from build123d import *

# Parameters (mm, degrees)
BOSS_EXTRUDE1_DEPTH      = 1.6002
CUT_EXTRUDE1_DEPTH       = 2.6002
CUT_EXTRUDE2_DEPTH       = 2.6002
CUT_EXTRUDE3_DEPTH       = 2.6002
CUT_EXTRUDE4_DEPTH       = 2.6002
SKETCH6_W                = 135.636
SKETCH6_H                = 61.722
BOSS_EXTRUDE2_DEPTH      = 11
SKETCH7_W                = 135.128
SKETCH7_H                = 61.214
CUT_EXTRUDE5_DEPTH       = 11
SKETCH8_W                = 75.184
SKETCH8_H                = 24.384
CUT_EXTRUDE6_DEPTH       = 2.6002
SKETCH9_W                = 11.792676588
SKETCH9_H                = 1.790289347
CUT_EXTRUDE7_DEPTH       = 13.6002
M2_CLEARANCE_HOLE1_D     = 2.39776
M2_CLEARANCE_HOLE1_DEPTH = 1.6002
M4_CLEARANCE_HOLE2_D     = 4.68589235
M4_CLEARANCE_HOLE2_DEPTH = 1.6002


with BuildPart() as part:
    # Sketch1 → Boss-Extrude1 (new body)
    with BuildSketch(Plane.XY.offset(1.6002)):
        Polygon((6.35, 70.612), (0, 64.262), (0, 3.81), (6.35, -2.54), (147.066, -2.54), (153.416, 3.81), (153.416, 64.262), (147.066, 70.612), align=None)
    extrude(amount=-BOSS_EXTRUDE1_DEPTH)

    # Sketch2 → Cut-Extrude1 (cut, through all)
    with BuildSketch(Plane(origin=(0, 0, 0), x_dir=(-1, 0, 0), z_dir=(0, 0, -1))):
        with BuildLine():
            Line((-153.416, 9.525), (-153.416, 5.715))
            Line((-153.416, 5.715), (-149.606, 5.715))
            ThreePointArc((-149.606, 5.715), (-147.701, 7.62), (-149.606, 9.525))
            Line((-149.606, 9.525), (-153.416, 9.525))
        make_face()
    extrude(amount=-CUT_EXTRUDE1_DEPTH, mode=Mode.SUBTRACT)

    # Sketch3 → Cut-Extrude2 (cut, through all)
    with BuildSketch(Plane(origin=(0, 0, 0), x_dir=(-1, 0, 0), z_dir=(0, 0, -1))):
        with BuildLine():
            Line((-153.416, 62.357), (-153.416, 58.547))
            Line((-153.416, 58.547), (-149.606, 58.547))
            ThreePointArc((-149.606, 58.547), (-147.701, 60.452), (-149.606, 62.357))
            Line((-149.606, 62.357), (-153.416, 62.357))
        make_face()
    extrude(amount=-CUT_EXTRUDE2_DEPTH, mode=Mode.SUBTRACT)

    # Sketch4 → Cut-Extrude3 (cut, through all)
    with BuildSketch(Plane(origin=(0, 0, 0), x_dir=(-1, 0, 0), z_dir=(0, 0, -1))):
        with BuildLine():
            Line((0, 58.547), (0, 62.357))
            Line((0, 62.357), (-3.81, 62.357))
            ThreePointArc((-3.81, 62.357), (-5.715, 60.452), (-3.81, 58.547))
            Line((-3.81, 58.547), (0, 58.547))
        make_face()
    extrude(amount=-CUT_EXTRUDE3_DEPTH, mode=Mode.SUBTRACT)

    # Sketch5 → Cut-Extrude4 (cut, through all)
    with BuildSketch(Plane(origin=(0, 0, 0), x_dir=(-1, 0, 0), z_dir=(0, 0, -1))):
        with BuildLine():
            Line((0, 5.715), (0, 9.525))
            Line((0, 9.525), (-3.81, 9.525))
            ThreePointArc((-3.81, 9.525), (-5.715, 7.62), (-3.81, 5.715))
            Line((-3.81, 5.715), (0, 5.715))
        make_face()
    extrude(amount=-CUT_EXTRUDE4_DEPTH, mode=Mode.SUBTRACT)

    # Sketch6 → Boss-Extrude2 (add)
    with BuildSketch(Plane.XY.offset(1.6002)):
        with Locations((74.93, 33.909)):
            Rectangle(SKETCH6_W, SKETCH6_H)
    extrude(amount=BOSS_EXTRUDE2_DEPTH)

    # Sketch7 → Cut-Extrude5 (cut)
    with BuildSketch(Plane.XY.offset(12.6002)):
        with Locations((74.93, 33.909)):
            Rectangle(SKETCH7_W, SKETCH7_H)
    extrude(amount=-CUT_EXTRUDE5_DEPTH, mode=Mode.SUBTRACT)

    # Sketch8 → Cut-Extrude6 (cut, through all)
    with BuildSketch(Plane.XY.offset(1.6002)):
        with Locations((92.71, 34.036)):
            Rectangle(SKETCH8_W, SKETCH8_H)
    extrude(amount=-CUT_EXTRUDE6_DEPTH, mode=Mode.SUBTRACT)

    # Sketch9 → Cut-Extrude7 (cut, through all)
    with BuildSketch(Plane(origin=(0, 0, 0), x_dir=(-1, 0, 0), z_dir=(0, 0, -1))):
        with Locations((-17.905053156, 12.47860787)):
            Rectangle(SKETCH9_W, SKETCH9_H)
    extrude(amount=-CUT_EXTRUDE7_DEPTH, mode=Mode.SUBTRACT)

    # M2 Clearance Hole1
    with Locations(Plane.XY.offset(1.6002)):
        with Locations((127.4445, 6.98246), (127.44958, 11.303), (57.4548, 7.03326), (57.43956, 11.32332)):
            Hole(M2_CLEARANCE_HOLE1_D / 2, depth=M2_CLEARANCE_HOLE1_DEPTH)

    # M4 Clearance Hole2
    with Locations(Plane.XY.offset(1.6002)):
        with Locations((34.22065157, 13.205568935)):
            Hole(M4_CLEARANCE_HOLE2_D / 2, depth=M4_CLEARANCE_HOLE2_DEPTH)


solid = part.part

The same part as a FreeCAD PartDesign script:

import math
import FreeCAD as App
import Part
import Sketcher
from FreeCAD import Vector
Q = App.Units.Quantity

doc = App.newDocument("Part")
params = doc.addObject("Spreadsheet::Sheet", "Params")
for row, (alias, value) in enumerate([
    ("sketch1_width", "5.54 in"),
    ("sketch1_height", "2.38 in"),
    ("pad1_length", "0.063 in"),
    ("sketch2_radius", "0.075 in"),
    ("sketch3_radius", "0.075 in"),
    ("sketch4_radius", "0.075 in"),
    ("sketch5_radius", "0.075 in"),
    ("sketch6_width", "5.34 in"),
    ("sketch6_height", "2.43 in"),
    ("pad2_length", "11 mm"),
    ("sketch7_width", "5.32 in"),
    ("sketch7_height", "2.41 in"),
    ("pocket5_length", "11 mm"),
    ("sketch8_width", "2.96 in"),
    ("sketch8_height", "0.96 in"),
    ("hole_diameter", "0.0944 in"),
    ("hole_depth", "0.063 in"),
    ("hole2_diameter", "4.685892 mm"),
    ("hole2_depth", "0.063 in"),
], start=1):
    params.set(f"A{row}", alias)
    params.set(f"B{row}", "=" + value)
    params.setAlias(f"B{row}", alias)

body = doc.addObject("PartDesign::Body", "Body")

sketch1 = doc.addObject("Sketcher::SketchObject", "Sketch")
body.addObject(sketch1)
sketch1.AttachmentSupport = (doc.XY_Plane, [""])
sketch1.MapMode = "FlatFace"
sketch1.AttachmentOffset = App.Placement(Vector(0, 0, 0.063 * 25.4), App.Rotation())
sketch1.addGeometry([
    Part.LineSegment(Vector(6.35, 70.612, 0), Vector(0, 64.262, 0)),
    Part.LineSegment(Vector(0, 64.262, 0), Vector(0, 3.81, 0)),
    Part.LineSegment(Vector(0, 3.81, 0), Vector(6.35, -2.54, 0)),
    Part.LineSegment(Vector(6.35, -2.54, 0), Vector(147.066, -2.54, 0)),
    Part.LineSegment(Vector(147.066, -2.54, 0), Vector(153.416, 3.81, 0)),
    Part.LineSegment(Vector(153.416, 3.81, 0), Vector(153.416, 64.262, 0)),
    Part.LineSegment(Vector(153.416, 64.262, 0), Vector(147.066, 70.612, 0)),
    Part.LineSegment(Vector(147.066, 70.612, 0), Vector(6.35, 70.612, 0)),
], False)
sketch1.addConstraint([
    Sketcher.Constraint("Coincident", 0, 2, 1, 1),
    Sketcher.Constraint("Coincident", 1, 2, 2, 1),
    Sketcher.Constraint("Coincident", 2, 2, 3, 1),
    Sketcher.Constraint("Coincident", 3, 2, 4, 1),
    Sketcher.Constraint("Coincident", 4, 2, 5, 1),
    Sketcher.Constraint("Coincident", 5, 2, 6, 1),
    Sketcher.Constraint("Coincident", 6, 2, 7, 1),
    Sketcher.Constraint("Coincident", 7, 2, 0, 1),
    Sketcher.Constraint("Vertical", 1),
    Sketcher.Constraint("Horizontal", 3),
    Sketcher.Constraint("Vertical", 5),
    Sketcher.Constraint("Horizontal", 7),
    Sketcher.Constraint("PointOnObject", 0, 2, -2),
    Sketcher.Constraint("Perpendicular", 0, 2),
    Sketcher.Constraint("Perpendicular", 2, 4),
    Sketcher.Constraint("Perpendicular", 4, 6),
    Sketcher.Constraint("Horizontal", 1, 2, 4, 2),
    Sketcher.Constraint("Horizontal", 0, 2, 5, 2),
    Sketcher.Constraint("Vertical", 3, 2, 6, 2),
    Sketcher.Constraint("Vertical", 2, 2, 7, 2),
    Sketcher.Constraint("DistanceX", 3, 1, 3, 2, Q("5.54 in")),
    Sketcher.Constraint("DistanceY", 1, 2, 1, 1, Q("2.38 in")),
    Sketcher.Constraint("DistanceY", 2, 2, -1, 1, Q("0.1 in")),
    Sketcher.Constraint("DistanceY", -1, 1, 0, 2, Q("2.53 in")),
])
sketch1.setExpression("Constraints[20]", "Params.sketch1_width")
sketch1.setExpression("Constraints[21]", "Params.sketch1_height")
pad1 = doc.addObject("PartDesign::Pad", "Pad")
body.addObject(pad1)
pad1.Profile = sketch1
pad1.setExpression("Length", "Params.pad1_length")
pad1.Reversed = True

sketch2 = doc.addObject("Sketcher::SketchObject", "Sketch001")
body.addObject(sketch2)
sketch2.AttachmentSupport = (doc.XY_Plane, [""])
sketch2.MapMode = "FlatFace"
sketch2.addGeometry([
    Part.LineSegment(Vector(153.416, 9.525, 0), Vector(153.416, 5.715, 0)),
    Part.LineSegment(Vector(153.416, 5.715, 0), Vector(149.606, 5.715, 0)),
    Part.ArcOfCircle(Part.Circle(Vector(149.606, 7.62, 0), Vector(0, 0, 1), 1.905), math.radians(90), math.radians(270)),
    Part.LineSegment(Vector(149.606, 9.525, 0), Vector(153.416, 9.525, 0)),
], False)
sketch2.addConstraint([
    Sketcher.Constraint("Coincident", 0, 2, 1, 1),
    Sketcher.Constraint("Tangent", 1, 2, 2, 2),
    Sketcher.Constraint("Tangent", 2, 1, 3, 1),
    Sketcher.Constraint("Coincident", 3, 2, 0, 1),
    Sketcher.Constraint("Vertical", 0),
    Sketcher.Constraint("Horizontal", 1),
    Sketcher.Constraint("Horizontal", 3),
    Sketcher.Constraint("Equal", 3, 0),
    Sketcher.Constraint("Radius", 2, Q("0.075 in")),
    Sketcher.Constraint("DistanceY", -1, 1, 2, 3, Q("0.3 in")),
    Sketcher.Constraint("DistanceX", -1, 1, 2, 3, Q("5.89 in")),
])
sketch2.setExpression("Constraints[8]", "Params.sketch2_radius")
pocket1 = doc.addObject("PartDesign::Pocket", "Pocket")
body.addObject(pocket1)
pocket1.Profile = sketch2
pocket1.Type = "ThroughAll"
pocket1.Reversed = True

sketch3 = doc.addObject("Sketcher::SketchObject", "Sketch002")
body.addObject(sketch3)
sketch3.AttachmentSupport = (doc.XY_Plane, [""])
sketch3.MapMode = "FlatFace"
sketch3.addGeometry([
    Part.LineSegment(Vector(153.416, 62.357, 0), Vector(153.416, 58.547, 0)),
    Part.LineSegment(Vector(153.416, 58.547, 0), Vector(149.606, 58.547, 0)),
    Part.ArcOfCircle(Part.Circle(Vector(149.606, 60.452, 0), Vector(0, 0, 1), 1.905), math.radians(90), math.radians(270)),
    Part.LineSegment(Vector(149.606, 62.357, 0), Vector(153.416, 62.357, 0)),
], False)
sketch3.addConstraint([
    Sketcher.Constraint("Coincident", 0, 2, 1, 1),
    Sketcher.Constraint("Tangent", 1, 2, 2, 2),
    Sketcher.Constraint("Tangent", 2, 1, 3, 1),
    Sketcher.Constraint("Coincident", 3, 2, 0, 1),
    Sketcher.Constraint("Vertical", 0),
    Sketcher.Constraint("Horizontal", 1),
    Sketcher.Constraint("Horizontal", 3),
    Sketcher.Constraint("Equal", 3, 0),
    Sketcher.Constraint("Radius", 2, Q("0.075 in")),
    Sketcher.Constraint("DistanceX", -1, 1, 2, 3, Q("5.89 in")),
    Sketcher.Constraint("DistanceY", -1, 1, 2, 3, Q("2.38 in")),
])
sketch3.setExpression("Constraints[8]", "Params.sketch3_radius")
pocket2 = doc.addObject("PartDesign::Pocket", "Pocket001")
body.addObject(pocket2)
pocket2.Profile = sketch3
pocket2.Type = "ThroughAll"
pocket2.Reversed = True

sketch4 = doc.addObject("Sketcher::SketchObject", "Sketch003")
body.addObject(sketch4)
sketch4.AttachmentSupport = (doc.XY_Plane, [""])
sketch4.MapMode = "FlatFace"
sketch4.addGeometry([
    Part.LineSegment(Vector(0, 58.547, 0), Vector(0, 62.357, 0)),
    Part.LineSegment(Vector(0, 62.357, 0), Vector(3.81, 62.357, 0)),
    Part.ArcOfCircle(Part.Circle(Vector(3.81, 60.452, 0), Vector(0, 0, 1), 1.905), math.radians(-90), math.radians(90)),
    Part.LineSegment(Vector(3.81, 58.547, 0), Vector(0, 58.547, 0)),
], False)
sketch4.addConstraint([
    Sketcher.Constraint("Coincident", 0, 2, 1, 1),
    Sketcher.Constraint("Tangent", 1, 2, 2, 2),
    Sketcher.Constraint("Tangent", 2, 1, 3, 1),
    Sketcher.Constraint("Coincident", 3, 2, 0, 1),
    Sketcher.Constraint("Vertical", 0),
    Sketcher.Constraint("Horizontal", 1),
    Sketcher.Constraint("Horizontal", 3),
    Sketcher.Constraint("PointOnObject", 0, 2, -2),
    Sketcher.Constraint("Equal", 3, 0),
    Sketcher.Constraint("Radius", 2, Q("0.075 in")),
    Sketcher.Constraint("DistanceY", -1, 1, 2, 3, Q("2.38 in")),
])
sketch4.setExpression("Constraints[9]", "Params.sketch4_radius")
pocket3 = doc.addObject("PartDesign::Pocket", "Pocket002")
body.addObject(pocket3)
pocket3.Profile = sketch4
pocket3.Type = "ThroughAll"
pocket3.Reversed = True

sketch5 = doc.addObject("Sketcher::SketchObject", "Sketch004")
body.addObject(sketch5)
sketch5.AttachmentSupport = (doc.XY_Plane, [""])
sketch5.MapMode = "FlatFace"
sketch5.addGeometry([
    Part.LineSegment(Vector(0, 5.715, 0), Vector(0, 9.525, 0)),
    Part.LineSegment(Vector(0, 9.525, 0), Vector(3.81, 9.525, 0)),
    Part.ArcOfCircle(Part.Circle(Vector(3.81, 7.62, 0), Vector(0, 0, 1), 1.905), math.radians(-90), math.radians(90)),
    Part.LineSegment(Vector(3.81, 5.715, 0), Vector(0, 5.715, 0)),
], False)
sketch5.addConstraint([
    Sketcher.Constraint("Coincident", 0, 2, 1, 1),
    Sketcher.Constraint("Tangent", 1, 2, 2, 2),
    Sketcher.Constraint("Tangent", 2, 1, 3, 1),
    Sketcher.Constraint("Coincident", 3, 2, 0, 1),
    Sketcher.Constraint("Vertical", 0),
    Sketcher.Constraint("Horizontal", 1),
    Sketcher.Constraint("Horizontal", 3),
    Sketcher.Constraint("PointOnObject", 0, 2, -2),
    Sketcher.Constraint("Equal", 3, 0),
    Sketcher.Constraint("Radius", 2, Q("0.075 in")),
    Sketcher.Constraint("DistanceY", -1, 1, 2, 3, Q("0.3 in")),
])
sketch5.setExpression("Constraints[9]", "Params.sketch5_radius")
pocket4 = doc.addObject("PartDesign::Pocket", "Pocket003")
body.addObject(pocket4)
pocket4.Profile = sketch5
pocket4.Type = "ThroughAll"
pocket4.Reversed = True

sketch6 = doc.addObject("Sketcher::SketchObject", "Sketch005")
body.addObject(sketch6)
sketch6.AttachmentSupport = (doc.XY_Plane, [""])
sketch6.MapMode = "FlatFace"
sketch6.AttachmentOffset = App.Placement(Vector(0, 0, 0.063 * 25.4), App.Rotation())
sketch6.addGeometry([
    Part.LineSegment(Vector(7.112, 64.77, 0), Vector(7.112, 3.048, 0)),
    Part.LineSegment(Vector(7.112, 3.048, 0), Vector(142.748, 3.048, 0)),
    Part.LineSegment(Vector(142.748, 3.048, 0), Vector(142.748, 64.77, 0)),
    Part.LineSegment(Vector(142.748, 64.77, 0), Vector(7.112, 64.77, 0)),
], False)
sketch6.addConstraint([
    Sketcher.Constraint("Coincident", 0, 2, 1, 1),
    Sketcher.Constraint("Coincident", 1, 2, 2, 1),
    Sketcher.Constraint("Coincident", 2, 2, 3, 1),
    Sketcher.Constraint("Coincident", 3, 2, 0, 1),
    Sketcher.Constraint("Vertical", 0),
    Sketcher.Constraint("Horizontal", 1),
    Sketcher.Constraint("Vertical", 2),
    Sketcher.Constraint("Horizontal", 3),
    Sketcher.Constraint("DistanceX", 1, 1, 1, 2, Q("5.34 in")),
    Sketcher.Constraint("DistanceY", 0, 2, 0, 1, Q("2.43 in")),
    Sketcher.Constraint("DistanceX", -1, 1, 0, 2, Q("0.28 in")),
    Sketcher.Constraint("DistanceY", -1, 1, 0, 2, Q("0.12 in")),
])
sketch6.setExpression("Constraints[8]", "Params.sketch6_width")
sketch6.setExpression("Constraints[9]", "Params.sketch6_height")
pad2 = doc.addObject("PartDesign::Pad", "Pad001")
body.addObject(pad2)
pad2.Profile = sketch6
pad2.setExpression("Length", "Params.pad2_length")

sketch7 = doc.addObject("Sketcher::SketchObject", "Sketch006")
body.addObject(sketch7)
sketch7.AttachmentSupport = (doc.XY_Plane, [""])
sketch7.MapMode = "FlatFace"
sketch7.AttachmentOffset = App.Placement(Vector(0, 0, 12.6002), App.Rotation())
sketch7.addGeometry([
    Part.LineSegment(Vector(7.366, 64.516, 0), Vector(7.366, 3.302, 0)),
    Part.LineSegment(Vector(7.366, 3.302, 0), Vector(142.494, 3.302, 0)),
    Part.LineSegment(Vector(142.494, 3.302, 0), Vector(142.494, 64.516, 0)),
    Part.LineSegment(Vector(142.494, 64.516, 0), Vector(7.366, 64.516, 0)),
], False)
sketch7.addConstraint([
    Sketcher.Constraint("Coincident", 0, 2, 1, 1),
    Sketcher.Constraint("Coincident", 1, 2, 2, 1),
    Sketcher.Constraint("Coincident", 2, 2, 3, 1),
    Sketcher.Constraint("Coincident", 3, 2, 0, 1),
    Sketcher.Constraint("Vertical", 0),
    Sketcher.Constraint("Horizontal", 1),
    Sketcher.Constraint("Vertical", 2),
    Sketcher.Constraint("Horizontal", 3),
    Sketcher.Constraint("DistanceX", 1, 1, 1, 2, Q("5.32 in")),
    Sketcher.Constraint("DistanceY", 0, 2, 0, 1, Q("2.41 in")),
    Sketcher.Constraint("DistanceX", -1, 1, 0, 2, Q("0.29 in")),
    Sketcher.Constraint("DistanceY", -1, 1, 0, 2, Q("0.13 in")),
])
sketch7.setExpression("Constraints[8]", "Params.sketch7_width")
sketch7.setExpression("Constraints[9]", "Params.sketch7_height")
pocket5 = doc.addObject("PartDesign::Pocket", "Pocket004")
body.addObject(pocket5)
pocket5.Profile = sketch7
pocket5.setExpression("Length", "Params.pocket5_length")

sketch8 = doc.addObject("Sketcher::SketchObject", "Sketch007")
body.addObject(sketch8)
sketch8.AttachmentSupport = (doc.XY_Plane, [""])
sketch8.MapMode = "FlatFace"
sketch8.AttachmentOffset = App.Placement(Vector(0, 0, 0.063 * 25.4), App.Rotation())
sketch8.addGeometry([
    Part.LineSegment(Vector(55.118, 46.228, 0), Vector(55.118, 21.844, 0)),
    Part.LineSegment(Vector(55.118, 21.844, 0), Vector(130.302, 21.844, 0)),
    Part.LineSegment(Vector(130.302, 21.844, 0), Vector(130.302, 46.228, 0)),
    Part.LineSegment(Vector(130.302, 46.228, 0), Vector(55.118, 46.228, 0)),
], False)
sketch8.addConstraint([
    Sketcher.Constraint("Coincident", 0, 2, 1, 1),
    Sketcher.Constraint("Coincident", 1, 2, 2, 1),
    Sketcher.Constraint("Coincident", 2, 2, 3, 1),
    Sketcher.Constraint("Coincident", 3, 2, 0, 1),
    Sketcher.Constraint("Vertical", 0),
    Sketcher.Constraint("Horizontal", 1),
    Sketcher.Constraint("Vertical", 2),
    Sketcher.Constraint("Horizontal", 3),
    Sketcher.Constraint("DistanceX", 1, 1, 1, 2, Q("2.96 in")),
    Sketcher.Constraint("DistanceY", 0, 2, 0, 1, Q("0.96 in")),
    Sketcher.Constraint("DistanceX", -1, 1, 0, 2, Q("2.17 in")),
    Sketcher.Constraint("DistanceY", -1, 1, 0, 2, Q("0.86 in")),
])
sketch8.setExpression("Constraints[8]", "Params.sketch8_width")
sketch8.setExpression("Constraints[9]", "Params.sketch8_height")
pocket6 = doc.addObject("PartDesign::Pocket", "Pocket005")
body.addObject(pocket6)
pocket6.Profile = sketch8
pocket6.Type = "ThroughAll"

sketch9 = doc.addObject("Sketcher::SketchObject", "Sketch008")
body.addObject(sketch9)
sketch9.AttachmentSupport = (doc.XY_Plane, [""])
sketch9.MapMode = "FlatFace"
sketch9.addGeometry([
    Part.LineSegment(Vector(23.801391, 13.373753, 0), Vector(23.801391, 11.583463, 0)),
    Part.LineSegment(Vector(23.801391, 11.583463, 0), Vector(12.008715, 11.583463, 0)),
    Part.LineSegment(Vector(12.008715, 11.583463, 0), Vector(12.008715, 13.373753, 0)),
    Part.LineSegment(Vector(12.008715, 13.373753, 0), Vector(23.801391, 13.373753, 0)),
], False)
sketch9.addConstraint([
    Sketcher.Constraint("Coincident", 0, 2, 1, 1),
    Sketcher.Constraint("Coincident", 1, 2, 2, 1),
    Sketcher.Constraint("Coincident", 2, 2, 3, 1),
    Sketcher.Constraint("Coincident", 3, 2, 0, 1),
    Sketcher.Constraint("Vertical", 0),
    Sketcher.Constraint("Horizontal", 1),
    Sketcher.Constraint("Vertical", 2),
    Sketcher.Constraint("Horizontal", 3),
    Sketcher.Constraint("DistanceY", 0, 2, 0, 1, 1.790289),
    Sketcher.Constraint("DistanceX", 1, 2, 1, 1, 11.792677),
    Sketcher.Constraint("DistanceX", -1, 1, 0, 2, 23.801391),
    Sketcher.Constraint("DistanceY", -1, 1, 0, 2, 11.583463),
])
pocket7 = doc.addObject("PartDesign::Pocket", "Pocket006")
body.addObject(pocket7)
pocket7.Profile = sketch9
pocket7.Type = "ThroughAll"
pocket7.Reversed = True

sketch10 = doc.addObject("Sketcher::SketchObject", "Sketch009")
body.addObject(sketch10)
sketch10.AttachmentSupport = (doc.XY_Plane, [""])
sketch10.MapMode = "FlatFace"
sketch10.AttachmentOffset = App.Placement(Vector(0, 0, 0.063 * 25.4), App.Rotation())
sketch10.addGeometry([
    Part.Circle(Vector(127.4445, 6.98246, 0), Vector(0, 0, 1), 1.19888),
    Part.Circle(Vector(127.44958, 11.303, 0), Vector(0, 0, 1), 1.19888),
    Part.Circle(Vector(57.4548, 7.03326, 0), Vector(0, 0, 1), 1.19888),
    Part.Circle(Vector(57.43956, 11.32332, 0), Vector(0, 0, 1), 1.19888),
], False)
sketch10.addConstraint([
    Sketcher.Constraint("Equal", 0, 1),
    Sketcher.Constraint("Equal", 1, 2),
    Sketcher.Constraint("Equal", 2, 3),
    Sketcher.Constraint("Diameter", 0, Q("0.0944 in")),
    Sketcher.Constraint("DistanceY", -1, 1, 1, 3, Q("0.445 in")),
    Sketcher.Constraint("DistanceX", -1, 1, 2, 3, Q("2.262 in")),
    Sketcher.Constraint("DistanceY", 0, 3, 2, 3, Q("0.002 in")),
    Sketcher.Constraint("DistanceX", -1, 1, 0, 3, Q("5.0175 in")),
    Sketcher.Constraint("DistanceY", -1, 1, 0, 3, Q("0.2749 in")),
    Sketcher.Constraint("DistanceX", -1, 1, 1, 3, Q("5.0177 in")),
    Sketcher.Constraint("DistanceX", -1, 1, 3, 3, Q("2.2614 in")),
    Sketcher.Constraint("DistanceY", -1, 1, 3, 3, Q("0.4458 in")),
])
doc.recompute()
hole = doc.addObject("PartDesign::Hole", "Hole")
body.addObject(hole)
hole.Profile = sketch10
hole.ThreadType = "None"
hole.setExpression("Diameter", "Params.hole_diameter")
hole.DepthType = "Dimension"
hole.setExpression("Depth", "Params.hole_depth")
hole.DrillPoint = "Flat"

sketch11 = doc.addObject("Sketcher::SketchObject", "Sketch010")
body.addObject(sketch11)
sketch11.AttachmentSupport = (doc.XY_Plane, [""])
sketch11.MapMode = "FlatFace"
sketch11.AttachmentOffset = App.Placement(Vector(0, 0, 0.063 * 25.4), App.Rotation())
sketch11.addGeometry(Part.Circle(Vector(34.220652, 13.205569, 0), Vector(0, 0, 1), 2.342946), False)
sketch11.addConstraint([
    Sketcher.Constraint("Diameter", 0, 4.685892),
    Sketcher.Constraint("DistanceX", -1, 1, 0, 3, 34.220652),
    Sketcher.Constraint("DistanceY", -1, 1, 0, 3, 13.205569),
])
doc.recompute()
hole2 = doc.addObject("PartDesign::Hole", "Hole001")
body.addObject(hole2)
hole2.Profile = sketch11
hole2.ThreadType = "None"
hole2.setExpression("Diameter", "Params.hole2_diameter")
hole2.DepthType = "Dimension"
hole2.setExpression("Depth", "Params.hole2_depth")
hole2.DrillPoint = "Flat"

doc.recompute()
